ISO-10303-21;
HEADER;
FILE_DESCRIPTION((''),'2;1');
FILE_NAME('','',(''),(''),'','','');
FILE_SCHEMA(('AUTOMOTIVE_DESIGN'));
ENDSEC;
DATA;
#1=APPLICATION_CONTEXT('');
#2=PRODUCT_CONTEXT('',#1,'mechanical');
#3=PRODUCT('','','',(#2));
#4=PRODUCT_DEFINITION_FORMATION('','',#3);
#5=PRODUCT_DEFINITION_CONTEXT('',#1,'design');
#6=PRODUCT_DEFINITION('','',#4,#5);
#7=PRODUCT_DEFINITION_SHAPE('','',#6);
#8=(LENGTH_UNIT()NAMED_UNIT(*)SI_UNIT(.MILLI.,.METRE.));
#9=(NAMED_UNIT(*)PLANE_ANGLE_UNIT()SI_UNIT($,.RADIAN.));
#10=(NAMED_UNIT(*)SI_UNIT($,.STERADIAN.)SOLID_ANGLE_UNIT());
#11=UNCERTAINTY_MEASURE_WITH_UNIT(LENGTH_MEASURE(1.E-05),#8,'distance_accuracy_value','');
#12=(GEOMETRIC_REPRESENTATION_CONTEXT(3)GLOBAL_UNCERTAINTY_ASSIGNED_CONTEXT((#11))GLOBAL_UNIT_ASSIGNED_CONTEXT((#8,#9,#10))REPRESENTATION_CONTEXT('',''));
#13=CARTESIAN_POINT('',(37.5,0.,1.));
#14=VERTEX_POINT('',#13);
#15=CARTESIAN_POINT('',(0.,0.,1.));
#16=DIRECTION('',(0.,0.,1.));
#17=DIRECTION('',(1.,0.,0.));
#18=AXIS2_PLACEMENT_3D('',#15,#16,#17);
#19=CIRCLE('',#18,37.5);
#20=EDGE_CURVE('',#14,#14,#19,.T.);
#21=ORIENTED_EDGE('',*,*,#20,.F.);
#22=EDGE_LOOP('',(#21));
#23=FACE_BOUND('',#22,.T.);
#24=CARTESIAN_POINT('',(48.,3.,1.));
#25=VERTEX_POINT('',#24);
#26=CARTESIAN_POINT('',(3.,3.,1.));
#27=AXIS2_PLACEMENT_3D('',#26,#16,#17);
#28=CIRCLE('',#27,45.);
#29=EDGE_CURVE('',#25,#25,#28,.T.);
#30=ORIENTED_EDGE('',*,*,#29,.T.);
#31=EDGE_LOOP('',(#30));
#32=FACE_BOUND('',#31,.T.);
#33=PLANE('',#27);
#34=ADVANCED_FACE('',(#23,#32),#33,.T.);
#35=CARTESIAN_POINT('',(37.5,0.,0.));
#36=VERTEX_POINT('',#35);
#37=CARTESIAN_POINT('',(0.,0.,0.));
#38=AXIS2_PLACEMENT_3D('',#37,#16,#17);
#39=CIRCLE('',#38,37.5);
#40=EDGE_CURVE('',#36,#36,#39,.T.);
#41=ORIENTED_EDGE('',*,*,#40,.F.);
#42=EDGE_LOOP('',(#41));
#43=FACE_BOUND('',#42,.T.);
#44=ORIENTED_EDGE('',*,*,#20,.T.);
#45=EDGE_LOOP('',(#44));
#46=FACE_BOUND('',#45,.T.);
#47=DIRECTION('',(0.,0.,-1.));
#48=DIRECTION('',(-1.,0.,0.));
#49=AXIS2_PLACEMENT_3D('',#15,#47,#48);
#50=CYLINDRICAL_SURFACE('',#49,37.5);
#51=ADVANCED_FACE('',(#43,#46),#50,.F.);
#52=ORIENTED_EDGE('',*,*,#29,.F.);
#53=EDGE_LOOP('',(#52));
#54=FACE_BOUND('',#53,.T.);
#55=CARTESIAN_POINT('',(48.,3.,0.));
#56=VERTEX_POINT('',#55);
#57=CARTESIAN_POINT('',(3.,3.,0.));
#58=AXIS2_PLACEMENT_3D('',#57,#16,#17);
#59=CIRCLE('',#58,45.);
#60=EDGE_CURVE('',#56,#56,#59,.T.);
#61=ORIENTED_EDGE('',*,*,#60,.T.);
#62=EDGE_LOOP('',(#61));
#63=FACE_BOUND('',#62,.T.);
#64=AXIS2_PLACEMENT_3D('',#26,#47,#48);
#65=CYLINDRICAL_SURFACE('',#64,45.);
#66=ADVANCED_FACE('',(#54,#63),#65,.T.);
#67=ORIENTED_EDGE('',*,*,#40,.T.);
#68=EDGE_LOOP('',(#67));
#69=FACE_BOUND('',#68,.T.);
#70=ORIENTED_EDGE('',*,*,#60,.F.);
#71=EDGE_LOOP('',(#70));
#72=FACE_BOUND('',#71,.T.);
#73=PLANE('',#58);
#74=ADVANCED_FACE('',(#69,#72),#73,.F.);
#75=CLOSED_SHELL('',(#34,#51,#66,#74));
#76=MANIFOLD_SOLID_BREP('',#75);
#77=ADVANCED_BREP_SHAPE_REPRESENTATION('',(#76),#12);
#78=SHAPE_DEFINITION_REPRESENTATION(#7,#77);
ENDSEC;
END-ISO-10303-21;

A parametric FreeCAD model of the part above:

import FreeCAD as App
import Part
import Sketcher
from FreeCAD import Vector
Q = App.Units.Quantity

doc = App.newDocument("Part")
body = doc.addObject("PartDesign::Body", "Body")

# Sketch on XY plane
sketch1 = doc.addObject("Sketcher::SketchObject", "Sketch")
body.addObject(sketch1)
sketch1.AttachmentSupport = (doc.XY_Plane, [""])
sketch1.MapMode = "FlatFace"
sketch1.addGeometry(Part.Circle(Vector(3, 3, 0), Vector(0, 0, 1), 45), False)
sketch1.addConstraint([
    Sketcher.Constraint("Diameter", 0, Q("90 mm")),
    Sketcher.Constraint("DistanceX", -1, 1, 0, 3, Q("3 mm")),
    Sketcher.Constraint("DistanceY", -1, 1, 0, 3, Q("3 mm")),
])
pad1 = doc.addObject("PartDesign::Pad", "Pad")
body.addObject(pad1)
pad1.Profile = sketch1
pad1.Length = 1

# Sketch on XY plane
sketch2 = doc.addObject("Sketcher::SketchObject", "Sketch001")
body.addObject(sketch2)
sketch2.AttachmentSupport = (doc.XY_Plane, [""])
sketch2.MapMode = "FlatFace"
sketch2.addGeometry(Part.Circle(Vector(0, 0, 0), Vector(0, 0, 1), 37.5), False)
sketch2.addConstraint([
    Sketcher.Constraint("Coincident", 0, 3, -1, 1),
    Sketcher.Constraint("Diameter", 0, Q("75 mm")),
])
pocket1 = doc.addObject("PartDesign::Pocket", "Pocket")
body.addObject(pocket1)
pocket1.Profile = sketch2
pocket1.Type = "ThroughAll"
pocket1.Reversed = True

doc.recompute()
